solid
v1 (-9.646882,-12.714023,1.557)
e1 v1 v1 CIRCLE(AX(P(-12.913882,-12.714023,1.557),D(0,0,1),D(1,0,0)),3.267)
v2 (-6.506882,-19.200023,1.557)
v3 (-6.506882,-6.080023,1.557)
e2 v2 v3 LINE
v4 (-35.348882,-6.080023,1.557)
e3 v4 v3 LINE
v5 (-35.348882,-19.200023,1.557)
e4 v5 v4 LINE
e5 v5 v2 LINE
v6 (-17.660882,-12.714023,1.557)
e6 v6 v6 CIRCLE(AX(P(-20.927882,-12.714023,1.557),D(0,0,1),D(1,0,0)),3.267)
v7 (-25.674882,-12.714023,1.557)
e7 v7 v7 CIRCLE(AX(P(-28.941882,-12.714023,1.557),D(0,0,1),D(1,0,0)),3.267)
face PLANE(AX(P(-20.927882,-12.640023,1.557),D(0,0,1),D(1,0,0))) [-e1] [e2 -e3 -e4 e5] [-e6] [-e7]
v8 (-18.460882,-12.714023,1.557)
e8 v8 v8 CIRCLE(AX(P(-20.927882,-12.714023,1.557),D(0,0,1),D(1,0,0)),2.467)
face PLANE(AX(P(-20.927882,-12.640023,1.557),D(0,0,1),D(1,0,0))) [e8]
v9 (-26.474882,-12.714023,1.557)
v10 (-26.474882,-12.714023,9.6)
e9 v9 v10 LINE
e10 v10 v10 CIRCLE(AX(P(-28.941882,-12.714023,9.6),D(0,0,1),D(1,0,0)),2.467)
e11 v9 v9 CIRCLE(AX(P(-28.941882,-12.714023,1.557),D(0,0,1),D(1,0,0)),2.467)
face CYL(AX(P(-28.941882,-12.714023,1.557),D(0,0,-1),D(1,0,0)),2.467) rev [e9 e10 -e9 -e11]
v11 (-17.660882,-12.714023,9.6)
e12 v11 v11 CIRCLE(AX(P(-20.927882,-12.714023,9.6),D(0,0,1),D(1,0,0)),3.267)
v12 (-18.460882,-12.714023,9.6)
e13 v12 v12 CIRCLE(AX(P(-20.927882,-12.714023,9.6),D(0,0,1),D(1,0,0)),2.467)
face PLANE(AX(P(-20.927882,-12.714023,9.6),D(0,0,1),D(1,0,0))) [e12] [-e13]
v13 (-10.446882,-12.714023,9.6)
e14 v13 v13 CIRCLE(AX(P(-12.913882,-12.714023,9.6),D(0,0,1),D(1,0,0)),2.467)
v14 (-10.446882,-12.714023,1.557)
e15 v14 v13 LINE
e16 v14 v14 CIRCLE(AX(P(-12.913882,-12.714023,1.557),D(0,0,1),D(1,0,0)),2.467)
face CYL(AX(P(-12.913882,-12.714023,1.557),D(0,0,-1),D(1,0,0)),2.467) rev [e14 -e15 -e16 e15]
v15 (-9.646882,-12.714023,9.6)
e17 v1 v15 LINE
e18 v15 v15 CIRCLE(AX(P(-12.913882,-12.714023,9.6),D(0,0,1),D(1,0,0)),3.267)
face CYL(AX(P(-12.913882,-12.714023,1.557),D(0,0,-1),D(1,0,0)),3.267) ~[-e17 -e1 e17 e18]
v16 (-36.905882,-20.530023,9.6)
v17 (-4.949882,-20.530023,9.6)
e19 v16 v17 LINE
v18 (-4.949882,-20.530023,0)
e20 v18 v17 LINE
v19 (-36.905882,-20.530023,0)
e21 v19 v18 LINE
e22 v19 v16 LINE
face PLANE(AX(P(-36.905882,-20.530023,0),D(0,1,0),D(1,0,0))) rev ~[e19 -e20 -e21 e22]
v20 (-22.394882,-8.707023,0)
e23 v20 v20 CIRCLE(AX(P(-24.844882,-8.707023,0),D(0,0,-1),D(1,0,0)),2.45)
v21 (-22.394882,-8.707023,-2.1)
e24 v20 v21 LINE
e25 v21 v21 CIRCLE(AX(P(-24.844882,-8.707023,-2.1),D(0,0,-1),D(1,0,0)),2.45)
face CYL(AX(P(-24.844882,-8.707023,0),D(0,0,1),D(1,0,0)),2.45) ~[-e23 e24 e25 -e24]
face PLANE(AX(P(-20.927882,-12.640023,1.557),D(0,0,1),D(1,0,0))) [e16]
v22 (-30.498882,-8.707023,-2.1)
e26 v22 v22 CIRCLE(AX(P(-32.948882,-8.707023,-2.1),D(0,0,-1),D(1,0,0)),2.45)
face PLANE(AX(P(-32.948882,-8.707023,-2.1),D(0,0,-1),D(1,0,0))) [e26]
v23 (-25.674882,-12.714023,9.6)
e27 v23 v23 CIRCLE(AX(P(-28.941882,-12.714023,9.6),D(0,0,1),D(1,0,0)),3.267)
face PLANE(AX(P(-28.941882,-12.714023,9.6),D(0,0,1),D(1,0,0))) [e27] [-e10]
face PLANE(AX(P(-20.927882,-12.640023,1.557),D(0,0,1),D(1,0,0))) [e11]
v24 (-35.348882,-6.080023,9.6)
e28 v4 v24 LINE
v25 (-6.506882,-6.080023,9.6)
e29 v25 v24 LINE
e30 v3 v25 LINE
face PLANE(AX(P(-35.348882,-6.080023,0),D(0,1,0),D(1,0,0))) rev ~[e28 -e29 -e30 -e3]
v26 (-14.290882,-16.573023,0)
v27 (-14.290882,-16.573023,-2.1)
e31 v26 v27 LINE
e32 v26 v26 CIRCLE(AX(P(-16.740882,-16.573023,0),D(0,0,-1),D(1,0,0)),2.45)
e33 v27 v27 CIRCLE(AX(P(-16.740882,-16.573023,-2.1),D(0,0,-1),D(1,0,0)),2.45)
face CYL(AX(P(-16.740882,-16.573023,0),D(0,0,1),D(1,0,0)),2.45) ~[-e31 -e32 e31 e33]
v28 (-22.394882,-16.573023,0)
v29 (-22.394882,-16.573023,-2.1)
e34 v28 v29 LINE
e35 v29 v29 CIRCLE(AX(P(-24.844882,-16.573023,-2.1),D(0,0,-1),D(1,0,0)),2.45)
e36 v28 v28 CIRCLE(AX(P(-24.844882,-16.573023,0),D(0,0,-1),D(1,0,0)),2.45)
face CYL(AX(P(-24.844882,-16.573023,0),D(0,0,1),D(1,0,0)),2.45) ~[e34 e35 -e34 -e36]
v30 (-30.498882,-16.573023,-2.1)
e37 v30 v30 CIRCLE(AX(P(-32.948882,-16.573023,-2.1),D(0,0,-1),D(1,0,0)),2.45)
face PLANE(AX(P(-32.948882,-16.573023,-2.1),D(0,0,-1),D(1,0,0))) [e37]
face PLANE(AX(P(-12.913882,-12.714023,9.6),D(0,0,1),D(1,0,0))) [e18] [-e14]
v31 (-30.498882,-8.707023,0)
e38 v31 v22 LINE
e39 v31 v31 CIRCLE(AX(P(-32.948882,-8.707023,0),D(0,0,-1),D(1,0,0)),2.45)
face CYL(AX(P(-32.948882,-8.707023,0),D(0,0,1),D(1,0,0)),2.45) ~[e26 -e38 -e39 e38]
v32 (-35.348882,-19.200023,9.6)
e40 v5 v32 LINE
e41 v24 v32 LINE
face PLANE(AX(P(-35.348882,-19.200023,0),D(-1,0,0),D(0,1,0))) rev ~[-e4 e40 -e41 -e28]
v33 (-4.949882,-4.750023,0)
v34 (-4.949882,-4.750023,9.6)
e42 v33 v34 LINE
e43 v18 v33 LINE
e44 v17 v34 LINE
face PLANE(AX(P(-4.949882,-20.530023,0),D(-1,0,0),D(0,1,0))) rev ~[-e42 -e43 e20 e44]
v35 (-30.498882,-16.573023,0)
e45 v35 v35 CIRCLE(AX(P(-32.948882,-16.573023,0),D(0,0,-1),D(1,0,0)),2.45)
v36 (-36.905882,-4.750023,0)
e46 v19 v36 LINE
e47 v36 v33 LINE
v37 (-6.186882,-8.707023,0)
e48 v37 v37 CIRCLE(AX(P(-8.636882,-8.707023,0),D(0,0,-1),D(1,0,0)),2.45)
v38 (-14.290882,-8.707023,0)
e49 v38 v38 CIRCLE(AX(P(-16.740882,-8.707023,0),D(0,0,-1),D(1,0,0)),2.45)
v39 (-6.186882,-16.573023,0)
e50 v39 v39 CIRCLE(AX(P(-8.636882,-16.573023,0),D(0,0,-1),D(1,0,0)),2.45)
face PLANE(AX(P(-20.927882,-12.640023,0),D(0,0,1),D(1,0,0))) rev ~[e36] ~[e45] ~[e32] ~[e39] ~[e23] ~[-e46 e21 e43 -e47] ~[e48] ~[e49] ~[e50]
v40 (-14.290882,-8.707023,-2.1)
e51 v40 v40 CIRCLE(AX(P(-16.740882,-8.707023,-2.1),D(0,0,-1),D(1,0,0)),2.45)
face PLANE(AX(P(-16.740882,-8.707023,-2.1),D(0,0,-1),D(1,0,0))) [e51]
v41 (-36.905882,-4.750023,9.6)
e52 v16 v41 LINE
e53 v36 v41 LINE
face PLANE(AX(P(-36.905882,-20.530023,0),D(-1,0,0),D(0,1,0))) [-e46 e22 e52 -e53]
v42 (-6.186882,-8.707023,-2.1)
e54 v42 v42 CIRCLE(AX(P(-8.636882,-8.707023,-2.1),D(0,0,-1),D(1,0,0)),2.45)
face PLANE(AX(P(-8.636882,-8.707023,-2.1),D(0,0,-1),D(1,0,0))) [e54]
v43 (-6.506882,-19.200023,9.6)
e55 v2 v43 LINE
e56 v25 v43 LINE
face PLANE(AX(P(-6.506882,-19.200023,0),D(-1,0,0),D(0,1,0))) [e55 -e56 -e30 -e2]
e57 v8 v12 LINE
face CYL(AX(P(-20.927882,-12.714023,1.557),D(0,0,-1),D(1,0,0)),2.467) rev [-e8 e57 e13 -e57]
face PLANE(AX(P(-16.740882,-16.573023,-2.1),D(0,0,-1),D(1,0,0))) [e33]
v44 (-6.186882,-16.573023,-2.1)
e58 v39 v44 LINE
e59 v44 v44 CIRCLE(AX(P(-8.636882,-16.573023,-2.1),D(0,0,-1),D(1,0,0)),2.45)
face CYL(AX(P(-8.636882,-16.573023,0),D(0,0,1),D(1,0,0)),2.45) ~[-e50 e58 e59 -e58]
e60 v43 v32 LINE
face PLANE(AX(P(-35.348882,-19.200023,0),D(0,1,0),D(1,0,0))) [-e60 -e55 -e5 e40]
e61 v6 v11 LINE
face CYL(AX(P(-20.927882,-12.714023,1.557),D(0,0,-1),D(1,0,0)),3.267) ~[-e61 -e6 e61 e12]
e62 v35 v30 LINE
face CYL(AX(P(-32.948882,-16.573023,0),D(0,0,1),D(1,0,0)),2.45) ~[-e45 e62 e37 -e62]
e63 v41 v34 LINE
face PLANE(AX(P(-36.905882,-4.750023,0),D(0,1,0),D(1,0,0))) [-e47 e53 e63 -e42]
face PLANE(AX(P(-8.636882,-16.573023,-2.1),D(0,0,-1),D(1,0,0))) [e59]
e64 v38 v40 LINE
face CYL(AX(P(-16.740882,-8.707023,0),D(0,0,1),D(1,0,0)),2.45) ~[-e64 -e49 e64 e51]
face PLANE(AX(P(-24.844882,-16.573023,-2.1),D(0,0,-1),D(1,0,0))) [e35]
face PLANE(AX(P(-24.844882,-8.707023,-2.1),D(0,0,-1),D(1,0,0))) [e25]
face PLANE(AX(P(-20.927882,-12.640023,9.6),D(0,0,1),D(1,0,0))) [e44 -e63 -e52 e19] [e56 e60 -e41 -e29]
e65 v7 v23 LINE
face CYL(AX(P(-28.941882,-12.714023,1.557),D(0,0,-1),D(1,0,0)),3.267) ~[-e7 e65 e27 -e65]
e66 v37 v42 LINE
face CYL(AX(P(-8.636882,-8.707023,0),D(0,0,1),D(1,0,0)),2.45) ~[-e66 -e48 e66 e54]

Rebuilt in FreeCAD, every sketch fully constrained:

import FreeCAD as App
import Part
import Sketcher
from FreeCAD import Vector


def add_polygon(sketch, points):
    """Adds a closed chain of lines whose ends are joined by coincident constraints."""
    first, n = sketch.GeometryCount, len(points)
    for a, b in zip(points, points[1:] + points[:1]):
        sketch.addGeometry(Part.LineSegment(App.Vector(*a, 0), App.Vector(*b, 0)), False)
    for i in range(n):
        sketch.addConstraint(Sketcher.Constraint("Coincident", first + i, 2, first + (i + 1) % n, 1))

doc = App.newDocument("Part")
body = doc.addObject("PartDesign::Body", "Body")

# Sketch on XY plane
sketch1 = body.newObject("Sketcher::SketchObject", "Sketch")
sketch1.AttachmentSupport = (doc.getObject("XY_Plane"), [""])
sketch1.MapMode = "FlatFace"
add_polygon(sketch1, [(-37, -5), (-37, -21), (-5, -21), (-5, -5)])  # lines 0-3
sketch1.addConstraint([
    Sketcher.Constraint("Vertical", 0),
    Sketcher.Constraint("Horizontal", 1),
    Sketcher.Constraint("Vertical", 2),
    Sketcher.Constraint("Horizontal", 3),
    Sketcher.Constraint("DistanceY", 0, 2, 0, 1, 15.78),
    Sketcher.Constraint("DistanceX", 1, 1, 1, 2, 31.956),
    Sketcher.Constraint("DistanceX", 0, 2, -1, 1, 36.905882),
    Sketcher.Constraint("DistanceY", 0, 2, -1, 1, 20.530023),
])
pad1 = body.newObject("PartDesign::Pad", "Pad")
pad1.Profile = sketch1
pad1.Length = 9.6

# Sketch on XY plane
sketch2 = body.newObject("Sketcher::SketchObject", "Sketch001")
sketch2.AttachmentSupport = (doc.getObject("XY_Plane"), [""])
sketch2.MapMode = "FlatFace"
add_polygon(sketch2, [(-35, -6), (-35, -19), (-7, -19), (-7, -6)])  # lines 0-3
sketch2.addConstraint([
    Sketcher.Constraint("Vertical", 0),
    Sketcher.Constraint("Horizontal", 1),
    Sketcher.Constraint("Vertical", 2),
    Sketcher.Constraint("Horizontal", 3),
    Sketcher.Constraint("DistanceY", 0, 2, 0, 1, 13.12),
    Sketcher.Constraint("DistanceX", 1, 1, 1, 2, 28.842),
    Sketcher.Constraint("DistanceX", 0, 2, -1, 1, 35.348882),
    Sketcher.Constraint("DistanceY", 0, 2, -1, 1, 19.200023),
])
pocket1 = body.newObject("PartDesign::Pocket", "Pocket")
pocket1.Profile = sketch2
pocket1.Length = 25
pocket1.Reversed = True

# Sketch on XY plane
sketch3 = body.newObject("Sketcher::SketchObject", "Sketch002")
sketch3.AttachmentSupport = (doc.getObject("XY_Plane"), [""])
sketch3.MapMode = "FlatFace"
add_polygon(sketch3, [(-35, -6), (-35, -19), (-7, -19), (-7, -6)])  # lines 0-3
sketch3.addConstraint([
    Sketcher.Constraint("Vertical", 0),
    Sketcher.Constraint("Horizontal", 1),
    Sketcher.Constraint("Vertical", 2),
    Sketcher.Constraint("Horizontal", 3),
    Sketcher.Constraint("DistanceY", 0, 2, 0, 1, 13.12),
    Sketcher.Constraint("DistanceX", 1, 1, 1, 2, 28.842),
    Sketcher.Constraint("DistanceX", 0, 2, -1, 1, 35.348882),
    Sketcher.Constraint("DistanceY", 0, 2, -1, 1, 19.200023),
])
pad2 = body.newObject("PartDesign::Pad", "Pad001")
pad2.Profile = sketch3
pad2.Length = 1.557

# Sketch on XY plane
sketch4 = body.newObject("Sketcher::SketchObject", "Sketch003")
sketch4.AttachmentSupport = (doc.getObject("XY_Plane"), [""])
sketch4.MapMode = "FlatFace"
sketch4.AttachmentOffset = App.Placement(Vector(0, 0, 1.557), App.Rotation())
sketch4.addGeometry([
    Part.Circle(Vector(-28.9, -12.7, 0), Vector(0, 0, 1), 3.3),  # 0
    Part.Circle(Vector(-28.9, -12.7, 0), Vector(0, 0, 1), 2.5),  # 1
    Part.Circle(Vector(-20.9, -12.7, 0), Vector(0, 0, 1), 3.3),  # 2
    Part.Circle(Vector(-20.9, -12.7, 0), Vector(0, 0, 1), 2.5),  # 3
    Part.Circle(Vector(-12.9, -12.7, 0), Vector(0, 0, 1), 3.3),  # 4
    Part.Circle(Vector(-12.9, -12.7, 0), Vector(0, 0, 1), 2.5),  # 5
], False)
sketch4.addConstraint([
    Sketcher.Constraint("Coincident", 1, 3, 0, 3),
    Sketcher.Constraint("Coincident", 3, 3, 2, 3),
    Sketcher.Constraint("Coincident", 5, 3, 4, 3),
    Sketcher.Constraint("Equal", 0, 2),
    Sketcher.Constraint("Equal", 1, 3),
    Sketcher.Constraint("Equal", 2, 4),
    Sketcher.Constraint("Equal", 3, 5),
    Sketcher.Constraint("Horizontal", 1, 3, 2, 3),
    Sketcher.Constraint("Horizontal", 3, 3, 4, 3),
    Sketcher.Constraint("Diameter", 0, 6.534),
    Sketcher.Constraint("Diameter", 1, 4.934),
    Sketcher.Constraint("DistanceX", 0, 3, 2, 3, 8.014),
    Sketcher.Constraint("DistanceX", 2, 3, 4, 3, 8.014),
    Sketcher.Constraint("DistanceX", 0, 3, -1, 1, 28.941882),
    Sketcher.Constraint("DistanceY", 0, 3, -1, 1, 12.714023),
])
pad3 = body.newObject("PartDesign::Pad", "Pad002")
pad3.Profile = sketch4
pad3.Length = 8.043

# Sketch on XY plane
sketch5 = body.newObject("Sketcher::SketchObject", "Sketch004")
sketch5.AttachmentSupport = (doc.getObject("XY_Plane"), [""])
sketch5.MapMode = "FlatFace"
sketch5.addGeometry([
    Part.Circle(Vector(-32.9, -16.6, 0), Vector(0, 0, 1), 2.5),  # 0
    Part.Circle(Vector(-24.8, -16.6, 0), Vector(0, 0, 1), 2.5),  # 1
    Part.Circle(Vector(-16.7, -16.6, 0), Vector(0, 0, 1), 2.5),  # 2
    Part.Circle(Vector(-8.6, -16.6, 0), Vector(0, 0, 1), 2.5),  # 3
    Part.Circle(Vector(-8.6, -8.7, 0), Vector(0, 0, 1), 2.5),  # 4
    Part.Circle(Vector(-16.7, -8.7, 0), Vector(0, 0, 1), 2.5),  # 5
    Part.Circle(Vector(-24.8, -8.7, 0), Vector(0, 0, 1), 2.5),  # 6
    Part.Circle(Vector(-32.9, -8.7, 0), Vector(0, 0, 1), 2.5),  # 7
], False)
sketch5.addConstraint([
    Sketcher.Constraint("Equal", 0, 1),
    Sketcher.Constraint("Equal", 1, 2),
    Sketcher.Constraint("Equal", 2, 3),
    Sketcher.Constraint("Equal", 3, 4),
    Sketcher.Constraint("Equal", 4, 5),
    Sketcher.Constraint("Equal", 5, 6),
    Sketcher.Constraint("Equal", 6, 7),
    Sketcher.Constraint("Horizontal", 0, 3, 1, 3),
    Sketcher.Constraint("Horizontal", 1, 3, 2, 3),
    Sketcher.Constraint("Horizontal", 2, 3, 3, 3),
    Sketcher.Constraint("Horizontal", 4, 3, 5, 3),
    Sketcher.Constraint("Horizontal", 5, 3, 6, 3),
    Sketcher.Constraint("Horizontal", 6, 3, 7, 3),
    Sketcher.Constraint("Vertical", 3, 3, 4, 3),
    Sketcher.Constraint("Vertical", 2, 3, 5, 3),
    Sketcher.Constraint("Vertical", 1, 3, 6, 3),
    Sketcher.Constraint("Vertical", 0, 3, 7, 3),
    Sketcher.Constraint("Diameter", 0, 4.9),
    Sketcher.Constraint("DistanceX", 0, 3, 1, 3, 8.104),
    Sketcher.Constraint("DistanceX", 1, 3, 2, 3, 8.104),
    Sketcher.Constraint("DistanceX", 2, 3, 3, 3, 8.104),
    Sketcher.Constraint("DistanceY", 3, 3, 4, 3, 7.866),
    Sketcher.Constraint("DistanceX", 0, 3, -1, 1, 32.948882),
    Sketcher.Constraint("DistanceY", 0, 3, -1, 1, 16.573023),
])
pad4 = body.newObject("PartDesign::Pad", "Pad003")
pad4.Profile = sketch5
pad4.Length = 2.1
pad4.Reversed = True

doc.recompute()
